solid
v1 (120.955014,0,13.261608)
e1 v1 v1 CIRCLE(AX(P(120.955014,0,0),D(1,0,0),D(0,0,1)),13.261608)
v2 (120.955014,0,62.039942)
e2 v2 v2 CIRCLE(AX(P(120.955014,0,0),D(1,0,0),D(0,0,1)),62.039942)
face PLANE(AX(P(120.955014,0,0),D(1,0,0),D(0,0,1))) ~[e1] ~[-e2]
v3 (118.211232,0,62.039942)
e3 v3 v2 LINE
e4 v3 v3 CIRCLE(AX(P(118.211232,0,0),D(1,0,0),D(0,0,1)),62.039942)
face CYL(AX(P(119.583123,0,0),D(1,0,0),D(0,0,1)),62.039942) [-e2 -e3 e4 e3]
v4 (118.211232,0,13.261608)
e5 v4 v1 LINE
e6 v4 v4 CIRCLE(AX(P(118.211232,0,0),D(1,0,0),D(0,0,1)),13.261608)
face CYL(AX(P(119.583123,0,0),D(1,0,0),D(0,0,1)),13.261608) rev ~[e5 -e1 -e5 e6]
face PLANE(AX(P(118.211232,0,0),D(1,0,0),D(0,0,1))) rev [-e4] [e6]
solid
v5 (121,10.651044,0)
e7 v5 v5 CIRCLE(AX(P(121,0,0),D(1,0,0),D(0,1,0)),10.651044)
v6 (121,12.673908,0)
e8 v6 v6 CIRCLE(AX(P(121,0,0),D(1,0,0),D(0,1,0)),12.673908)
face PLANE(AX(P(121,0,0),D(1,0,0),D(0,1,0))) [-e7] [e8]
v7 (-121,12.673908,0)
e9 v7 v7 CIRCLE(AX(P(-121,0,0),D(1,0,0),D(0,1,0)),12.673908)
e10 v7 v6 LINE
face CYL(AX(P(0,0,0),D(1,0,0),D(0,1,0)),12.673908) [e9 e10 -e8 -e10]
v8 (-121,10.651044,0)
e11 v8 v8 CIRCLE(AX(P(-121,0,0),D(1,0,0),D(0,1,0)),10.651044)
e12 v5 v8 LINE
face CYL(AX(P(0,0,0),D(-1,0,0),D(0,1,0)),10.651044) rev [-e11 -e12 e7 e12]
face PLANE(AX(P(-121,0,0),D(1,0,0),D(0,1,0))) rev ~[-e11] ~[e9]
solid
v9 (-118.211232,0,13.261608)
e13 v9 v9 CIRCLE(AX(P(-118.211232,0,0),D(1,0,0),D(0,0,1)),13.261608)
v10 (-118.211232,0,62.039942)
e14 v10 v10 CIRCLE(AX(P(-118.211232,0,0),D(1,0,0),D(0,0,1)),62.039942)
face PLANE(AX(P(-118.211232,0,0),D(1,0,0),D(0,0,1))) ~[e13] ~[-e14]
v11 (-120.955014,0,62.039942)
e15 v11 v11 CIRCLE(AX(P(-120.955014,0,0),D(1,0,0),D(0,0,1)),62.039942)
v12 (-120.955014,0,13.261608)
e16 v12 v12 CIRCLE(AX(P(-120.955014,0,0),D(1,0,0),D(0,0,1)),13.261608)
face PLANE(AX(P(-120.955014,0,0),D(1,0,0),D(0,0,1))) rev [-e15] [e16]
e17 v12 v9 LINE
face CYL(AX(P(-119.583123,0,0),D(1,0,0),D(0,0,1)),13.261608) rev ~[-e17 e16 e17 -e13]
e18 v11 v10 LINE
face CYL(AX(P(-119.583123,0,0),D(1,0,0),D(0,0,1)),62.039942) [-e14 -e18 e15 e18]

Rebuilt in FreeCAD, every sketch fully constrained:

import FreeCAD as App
import Part
import Sketcher

V = App.Vector
Q = App.Units.Quantity


def add_polygon(sketch, points):
    """Adds a closed chain of lines whose ends are joined by coincident constraints."""
    first, n = sketch.GeometryCount, len(points)
    for a, b in zip(points, points[1:] + points[:1]):
        sketch.addGeometry(Part.LineSegment(App.Vector(*a, 0), App.Vector(*b, 0)), False)
    for i in range(n):
        sketch.addConstraint(Sketcher.Constraint("Coincident", first + i, 2, first + (i + 1) % n, 1))

doc = App.newDocument("Part")
params = doc.addObject("Spreadsheet::Sheet", "Params")
for row, (alias, value) in enumerate([
    ("pad1_length", "242 mm"),
    ("revolution_angle", "360 deg"),
], start=1):
    params.set(f"A{row}", alias)
    params.set(f"B{row}", "=" + value)
    params.setAlias(f"B{row}", alias)

body = doc.addObject("PartDesign::Body", "Body")

sketch1 = body.newObject("Sketcher::SketchObject", "Sketch")
sketch1.AttachmentSupport = (doc.getObject("YZ_Plane"), [""])
sketch1.MapMode = "FlatFace"
sketch1.addGeometry([
    Part.Circle(V(0, 0, 0), V(0, 0, 1), 13),
    Part.Circle(V(0, 0, 0), V(0, 0, 1), 11),
], False)
sketch1.addConstraint([
    Sketcher.Constraint("Coincident", 0, 3, -1, 1),
    Sketcher.Constraint("Coincident", 1, 3, -1, 1),
    Sketcher.Constraint("Diameter", 1, Q("21.302088 mm")),
    Sketcher.Constraint("Diameter", 0, Q("25.347816 mm")),
])
pad1 = body.newObject("PartDesign::Pad", "Pad")
pad1.Profile = sketch1
pad1.setExpression("Length", "Params.pad1_length")
pad1.Midplane = True
body2 = doc.addObject("PartDesign::Body", "Body001")
body2.AllowCompound = True

sketch2 = body2.newObject("Sketcher::SketchObject", "Sketch001")
sketch2.AttachmentSupport = (doc.getObject("XZ_Plane001"), [""])
sketch2.MapMode = "FlatFace"
add_polygon(sketch2, [(-121, 62), (-121, 13.3), (-118.2, 13.3), (-118.2, 62)])
add_polygon(sketch2, [(118.2, 62), (118.2, 13.3), (121, 13.3), (121, 62)])
sketch2.addConstraint([
    Sketcher.Constraint("Vertical", 0),
    Sketcher.Constraint("Horizontal", 1),
    Sketcher.Constraint("Vertical", 2),
    Sketcher.Constraint("Horizontal", 3),
    Sketcher.Constraint("Vertical", 4),
    Sketcher.Constraint("Horizontal", 5),
    Sketcher.Constraint("Vertical", 6),
    Sketcher.Constraint("Horizontal", 7),
    Sketcher.Constraint("Symmetric", 1, 2, 4, 2, -2),
    Sketcher.Constraint("Symmetric", 3, 2, 6, 2, -2),
    Sketcher.Constraint("DistanceX", 1, 1, 1, 2, Q("2.743781 mm")),
    Sketcher.Constraint("DistanceY", 0, 2, 0, 1, Q("48.778334 mm")),
    Sketcher.Constraint("DistanceY", -1, 1, 0, 2, Q("13.261608 mm")),
    Sketcher.Constraint("DistanceX", 0, 2, -1, 1, Q("120.955014 mm")),
])
revolution = body2.newObject("PartDesign::Revolution", "Revolution")
revolution.Profile = sketch2
revolution.ReferenceAxis = (sketch2, ["H_Axis"])
revolution.setExpression("Angle", "Params.revolution_angle")

doc.recompute()
